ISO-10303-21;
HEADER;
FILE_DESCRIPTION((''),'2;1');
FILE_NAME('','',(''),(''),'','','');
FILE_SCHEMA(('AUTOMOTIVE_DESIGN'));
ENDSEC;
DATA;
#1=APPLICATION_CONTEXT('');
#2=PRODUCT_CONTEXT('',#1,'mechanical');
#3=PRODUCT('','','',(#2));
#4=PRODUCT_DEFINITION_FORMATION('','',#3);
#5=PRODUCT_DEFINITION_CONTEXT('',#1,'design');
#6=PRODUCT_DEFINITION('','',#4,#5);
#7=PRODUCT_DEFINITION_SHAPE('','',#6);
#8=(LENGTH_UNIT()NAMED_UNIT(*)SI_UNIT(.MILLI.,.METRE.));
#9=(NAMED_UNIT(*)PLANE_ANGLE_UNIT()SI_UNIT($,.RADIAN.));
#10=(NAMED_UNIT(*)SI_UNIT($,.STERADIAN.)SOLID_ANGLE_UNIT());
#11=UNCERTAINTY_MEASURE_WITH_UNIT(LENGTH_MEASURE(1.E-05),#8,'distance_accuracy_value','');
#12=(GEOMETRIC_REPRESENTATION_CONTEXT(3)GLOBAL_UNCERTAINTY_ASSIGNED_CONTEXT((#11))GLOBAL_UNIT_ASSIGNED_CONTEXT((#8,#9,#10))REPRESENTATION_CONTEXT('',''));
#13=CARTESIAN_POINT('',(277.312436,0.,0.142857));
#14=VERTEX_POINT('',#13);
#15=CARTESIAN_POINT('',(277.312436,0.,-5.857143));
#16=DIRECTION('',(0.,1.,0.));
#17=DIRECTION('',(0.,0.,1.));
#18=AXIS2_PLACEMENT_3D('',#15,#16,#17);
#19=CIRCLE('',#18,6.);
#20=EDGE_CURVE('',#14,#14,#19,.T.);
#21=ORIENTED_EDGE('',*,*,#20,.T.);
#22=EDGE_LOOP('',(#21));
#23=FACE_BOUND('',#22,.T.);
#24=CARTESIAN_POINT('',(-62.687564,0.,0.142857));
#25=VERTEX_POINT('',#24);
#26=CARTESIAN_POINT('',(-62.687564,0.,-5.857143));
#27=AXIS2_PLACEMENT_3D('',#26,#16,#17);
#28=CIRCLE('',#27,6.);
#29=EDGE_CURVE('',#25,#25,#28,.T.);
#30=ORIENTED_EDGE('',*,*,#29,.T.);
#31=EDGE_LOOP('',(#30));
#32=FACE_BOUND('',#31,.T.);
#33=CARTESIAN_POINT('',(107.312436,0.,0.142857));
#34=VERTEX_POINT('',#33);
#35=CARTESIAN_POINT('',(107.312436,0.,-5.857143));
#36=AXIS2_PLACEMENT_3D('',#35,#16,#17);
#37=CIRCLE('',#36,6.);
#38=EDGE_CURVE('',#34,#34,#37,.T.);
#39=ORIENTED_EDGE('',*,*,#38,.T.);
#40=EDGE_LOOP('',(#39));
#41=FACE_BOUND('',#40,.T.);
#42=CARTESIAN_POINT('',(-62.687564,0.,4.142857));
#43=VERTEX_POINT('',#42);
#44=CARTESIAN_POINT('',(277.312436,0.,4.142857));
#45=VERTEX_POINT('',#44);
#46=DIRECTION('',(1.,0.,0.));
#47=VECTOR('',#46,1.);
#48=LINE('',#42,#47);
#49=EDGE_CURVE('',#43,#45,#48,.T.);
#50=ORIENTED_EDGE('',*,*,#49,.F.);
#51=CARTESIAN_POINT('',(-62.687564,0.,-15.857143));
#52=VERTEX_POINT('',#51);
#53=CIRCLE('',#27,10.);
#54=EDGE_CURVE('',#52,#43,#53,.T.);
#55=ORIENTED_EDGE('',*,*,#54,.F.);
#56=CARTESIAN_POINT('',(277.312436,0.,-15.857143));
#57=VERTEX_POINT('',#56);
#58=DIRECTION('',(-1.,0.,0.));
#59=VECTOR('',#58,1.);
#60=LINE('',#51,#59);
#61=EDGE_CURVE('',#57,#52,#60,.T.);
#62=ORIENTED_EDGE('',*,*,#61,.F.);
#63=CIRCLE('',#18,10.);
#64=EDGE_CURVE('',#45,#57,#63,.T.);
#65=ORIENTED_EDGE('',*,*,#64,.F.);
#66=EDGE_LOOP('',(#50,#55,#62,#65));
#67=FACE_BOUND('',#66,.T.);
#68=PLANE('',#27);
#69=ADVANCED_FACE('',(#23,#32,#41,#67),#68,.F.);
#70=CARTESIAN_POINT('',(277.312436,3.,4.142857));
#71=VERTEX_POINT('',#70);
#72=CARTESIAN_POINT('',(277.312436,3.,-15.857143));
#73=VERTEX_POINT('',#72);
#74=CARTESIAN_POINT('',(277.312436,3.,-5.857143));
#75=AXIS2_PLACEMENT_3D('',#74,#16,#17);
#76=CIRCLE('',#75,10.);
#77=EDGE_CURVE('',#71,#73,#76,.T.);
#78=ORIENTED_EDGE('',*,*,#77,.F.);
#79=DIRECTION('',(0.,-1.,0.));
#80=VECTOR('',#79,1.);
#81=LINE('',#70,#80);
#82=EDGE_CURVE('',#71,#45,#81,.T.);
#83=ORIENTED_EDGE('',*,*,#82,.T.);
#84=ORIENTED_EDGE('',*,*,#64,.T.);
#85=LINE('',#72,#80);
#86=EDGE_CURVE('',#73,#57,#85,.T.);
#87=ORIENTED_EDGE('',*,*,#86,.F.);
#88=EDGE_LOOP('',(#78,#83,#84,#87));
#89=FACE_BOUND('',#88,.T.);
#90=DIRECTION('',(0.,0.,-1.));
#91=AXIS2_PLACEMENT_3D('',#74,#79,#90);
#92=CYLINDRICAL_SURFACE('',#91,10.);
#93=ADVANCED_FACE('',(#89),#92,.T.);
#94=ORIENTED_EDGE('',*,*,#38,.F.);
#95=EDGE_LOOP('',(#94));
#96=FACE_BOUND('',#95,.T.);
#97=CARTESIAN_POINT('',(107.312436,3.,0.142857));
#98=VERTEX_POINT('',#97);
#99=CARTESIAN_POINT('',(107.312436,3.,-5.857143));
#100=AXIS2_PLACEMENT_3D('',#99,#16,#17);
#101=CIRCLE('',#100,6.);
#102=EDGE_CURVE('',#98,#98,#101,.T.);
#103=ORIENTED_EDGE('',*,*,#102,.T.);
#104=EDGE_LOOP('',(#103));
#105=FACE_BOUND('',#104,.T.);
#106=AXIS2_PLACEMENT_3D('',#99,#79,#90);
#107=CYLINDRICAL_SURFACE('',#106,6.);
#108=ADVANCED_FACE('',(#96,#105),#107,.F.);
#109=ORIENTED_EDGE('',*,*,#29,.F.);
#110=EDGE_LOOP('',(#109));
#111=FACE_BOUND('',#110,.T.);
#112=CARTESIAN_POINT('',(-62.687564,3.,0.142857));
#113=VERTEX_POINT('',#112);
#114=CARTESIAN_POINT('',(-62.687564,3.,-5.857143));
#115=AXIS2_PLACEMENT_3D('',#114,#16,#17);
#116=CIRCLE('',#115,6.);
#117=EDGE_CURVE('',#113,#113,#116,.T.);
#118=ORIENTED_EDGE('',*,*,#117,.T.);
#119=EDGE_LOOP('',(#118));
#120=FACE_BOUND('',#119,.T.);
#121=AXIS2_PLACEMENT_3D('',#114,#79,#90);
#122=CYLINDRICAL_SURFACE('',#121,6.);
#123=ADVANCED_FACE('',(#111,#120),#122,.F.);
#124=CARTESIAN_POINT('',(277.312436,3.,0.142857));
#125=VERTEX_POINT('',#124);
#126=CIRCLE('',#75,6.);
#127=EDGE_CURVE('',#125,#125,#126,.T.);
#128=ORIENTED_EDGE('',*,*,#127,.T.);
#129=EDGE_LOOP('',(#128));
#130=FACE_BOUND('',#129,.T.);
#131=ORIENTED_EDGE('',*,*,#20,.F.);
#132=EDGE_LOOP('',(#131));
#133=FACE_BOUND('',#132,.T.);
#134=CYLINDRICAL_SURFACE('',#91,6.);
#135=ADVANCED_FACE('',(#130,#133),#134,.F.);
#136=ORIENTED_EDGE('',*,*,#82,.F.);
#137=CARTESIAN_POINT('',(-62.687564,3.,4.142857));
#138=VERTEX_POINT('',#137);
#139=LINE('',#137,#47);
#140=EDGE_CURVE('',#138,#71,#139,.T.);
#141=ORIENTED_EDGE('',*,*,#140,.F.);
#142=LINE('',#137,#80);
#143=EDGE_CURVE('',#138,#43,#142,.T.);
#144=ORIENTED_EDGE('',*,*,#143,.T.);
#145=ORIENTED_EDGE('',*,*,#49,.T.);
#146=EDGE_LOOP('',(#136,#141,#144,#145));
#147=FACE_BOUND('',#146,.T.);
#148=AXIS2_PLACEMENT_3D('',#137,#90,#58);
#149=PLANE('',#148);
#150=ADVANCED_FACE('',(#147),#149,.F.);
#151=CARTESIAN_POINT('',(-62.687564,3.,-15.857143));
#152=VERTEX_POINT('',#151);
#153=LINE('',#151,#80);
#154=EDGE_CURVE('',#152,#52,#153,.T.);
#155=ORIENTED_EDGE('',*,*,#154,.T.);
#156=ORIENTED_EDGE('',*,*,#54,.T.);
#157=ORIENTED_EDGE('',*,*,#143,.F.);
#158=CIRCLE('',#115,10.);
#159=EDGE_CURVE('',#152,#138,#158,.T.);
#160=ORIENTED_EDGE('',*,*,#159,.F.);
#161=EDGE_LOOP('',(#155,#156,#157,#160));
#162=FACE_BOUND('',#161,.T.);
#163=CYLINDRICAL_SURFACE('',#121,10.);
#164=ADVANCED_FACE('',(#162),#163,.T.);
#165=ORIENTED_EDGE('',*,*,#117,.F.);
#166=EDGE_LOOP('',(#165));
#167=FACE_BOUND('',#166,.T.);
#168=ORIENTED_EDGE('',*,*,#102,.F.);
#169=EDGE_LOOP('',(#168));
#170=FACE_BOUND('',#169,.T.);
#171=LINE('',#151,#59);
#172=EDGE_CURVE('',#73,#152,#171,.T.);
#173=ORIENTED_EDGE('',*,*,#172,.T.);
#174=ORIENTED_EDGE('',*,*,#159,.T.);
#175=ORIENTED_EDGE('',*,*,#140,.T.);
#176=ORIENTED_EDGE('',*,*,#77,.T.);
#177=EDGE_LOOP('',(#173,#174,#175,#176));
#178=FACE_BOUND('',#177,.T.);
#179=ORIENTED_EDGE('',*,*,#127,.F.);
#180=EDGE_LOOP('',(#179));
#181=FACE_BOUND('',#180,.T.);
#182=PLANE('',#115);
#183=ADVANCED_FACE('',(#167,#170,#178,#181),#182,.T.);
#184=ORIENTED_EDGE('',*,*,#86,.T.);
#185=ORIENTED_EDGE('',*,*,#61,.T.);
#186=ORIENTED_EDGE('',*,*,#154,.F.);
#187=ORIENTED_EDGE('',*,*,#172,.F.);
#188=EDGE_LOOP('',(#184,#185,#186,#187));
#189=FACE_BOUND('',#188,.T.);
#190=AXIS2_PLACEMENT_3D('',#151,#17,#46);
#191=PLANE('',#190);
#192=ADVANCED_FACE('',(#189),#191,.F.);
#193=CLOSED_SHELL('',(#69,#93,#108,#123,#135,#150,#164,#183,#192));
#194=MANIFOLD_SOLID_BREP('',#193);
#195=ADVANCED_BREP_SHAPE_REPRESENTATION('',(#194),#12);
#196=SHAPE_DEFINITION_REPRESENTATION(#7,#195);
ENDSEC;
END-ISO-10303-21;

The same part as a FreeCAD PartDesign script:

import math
import FreeCAD as App
import Part
import Sketcher

V = App.Vector

doc = App.newDocument("Part")
body = doc.addObject("PartDesign::Body", "Body")

# Sketch on XZ plane
sketch1 = body.newObject("Sketcher::SketchObject", "Sketch")
sketch1.AttachmentSupport = (doc.getObject("XZ_Plane"), [""])
sketch1.MapMode = "FlatFace"
sketch1.addGeometry([
    Part.LineSegment(V(277, -16, 0), V(-63, -16, 0)),  # 0
    Part.ArcOfCircle(Part.Circle(V(-63, -6, 0), V(0, 0, 1), 10), math.radians(90), math.radians(270)),  # 1
    Part.LineSegment(V(-63, 4, 0), V(277, 4, 0)),  # 2
    Part.ArcOfCircle(Part.Circle(V(277, -6, 0), V(0, 0, 1), 10), math.radians(-90), math.radians(90)),  # 3
    Part.Circle(V(277, -6, 0), V(0, 0, 1), 6),  # 4
    Part.Circle(V(107, -6, 0), V(0, 0, 1), 6),  # 5
    Part.Circle(V(-63, -6, 0), V(0, 0, 1), 6),  # 6
], False)
sketch1.addConstraint([
    Sketcher.Constraint("Tangent", 0, 2, 1, 2),
    Sketcher.Constraint("Tangent", 1, 1, 2, 1),
    Sketcher.Constraint("Tangent", 2, 2, 3, 2),
    Sketcher.Constraint("Tangent", 3, 1, 0, 1),
    Sketcher.Constraint("Horizontal", 0),
    Sketcher.Constraint("Horizontal", 2),
    Sketcher.Constraint("Coincident", 4, 3, 3, 3),
    Sketcher.Constraint("Coincident", 6, 3, 1, 3),
    Sketcher.Constraint("Equal", 4, 5),
    Sketcher.Constraint("Equal", 5, 6),
    Sketcher.Constraint("Horizontal", 4, 3, 5, 3),
    Sketcher.Constraint("Diameter", 4, 12.0),
    Sketcher.Constraint("Radius", 1, 10.0),
    Sketcher.Constraint("DistanceX", 0, 2, 0, 1, 340.0),
    Sketcher.Constraint("DistanceX", 1, 3, 5, 3, 170.0),
    Sketcher.Constraint("DistanceX", 1, 3, -1, 1, 62.687564),
    Sketcher.Constraint("DistanceY", 1, 3, -1, 1, 5.857143),
])
pad1 = body.newObject("PartDesign::Pad", "Pad")
pad1.Profile = sketch1
pad1.Length = 3
pad1.Reversed = True

doc.recompute()
